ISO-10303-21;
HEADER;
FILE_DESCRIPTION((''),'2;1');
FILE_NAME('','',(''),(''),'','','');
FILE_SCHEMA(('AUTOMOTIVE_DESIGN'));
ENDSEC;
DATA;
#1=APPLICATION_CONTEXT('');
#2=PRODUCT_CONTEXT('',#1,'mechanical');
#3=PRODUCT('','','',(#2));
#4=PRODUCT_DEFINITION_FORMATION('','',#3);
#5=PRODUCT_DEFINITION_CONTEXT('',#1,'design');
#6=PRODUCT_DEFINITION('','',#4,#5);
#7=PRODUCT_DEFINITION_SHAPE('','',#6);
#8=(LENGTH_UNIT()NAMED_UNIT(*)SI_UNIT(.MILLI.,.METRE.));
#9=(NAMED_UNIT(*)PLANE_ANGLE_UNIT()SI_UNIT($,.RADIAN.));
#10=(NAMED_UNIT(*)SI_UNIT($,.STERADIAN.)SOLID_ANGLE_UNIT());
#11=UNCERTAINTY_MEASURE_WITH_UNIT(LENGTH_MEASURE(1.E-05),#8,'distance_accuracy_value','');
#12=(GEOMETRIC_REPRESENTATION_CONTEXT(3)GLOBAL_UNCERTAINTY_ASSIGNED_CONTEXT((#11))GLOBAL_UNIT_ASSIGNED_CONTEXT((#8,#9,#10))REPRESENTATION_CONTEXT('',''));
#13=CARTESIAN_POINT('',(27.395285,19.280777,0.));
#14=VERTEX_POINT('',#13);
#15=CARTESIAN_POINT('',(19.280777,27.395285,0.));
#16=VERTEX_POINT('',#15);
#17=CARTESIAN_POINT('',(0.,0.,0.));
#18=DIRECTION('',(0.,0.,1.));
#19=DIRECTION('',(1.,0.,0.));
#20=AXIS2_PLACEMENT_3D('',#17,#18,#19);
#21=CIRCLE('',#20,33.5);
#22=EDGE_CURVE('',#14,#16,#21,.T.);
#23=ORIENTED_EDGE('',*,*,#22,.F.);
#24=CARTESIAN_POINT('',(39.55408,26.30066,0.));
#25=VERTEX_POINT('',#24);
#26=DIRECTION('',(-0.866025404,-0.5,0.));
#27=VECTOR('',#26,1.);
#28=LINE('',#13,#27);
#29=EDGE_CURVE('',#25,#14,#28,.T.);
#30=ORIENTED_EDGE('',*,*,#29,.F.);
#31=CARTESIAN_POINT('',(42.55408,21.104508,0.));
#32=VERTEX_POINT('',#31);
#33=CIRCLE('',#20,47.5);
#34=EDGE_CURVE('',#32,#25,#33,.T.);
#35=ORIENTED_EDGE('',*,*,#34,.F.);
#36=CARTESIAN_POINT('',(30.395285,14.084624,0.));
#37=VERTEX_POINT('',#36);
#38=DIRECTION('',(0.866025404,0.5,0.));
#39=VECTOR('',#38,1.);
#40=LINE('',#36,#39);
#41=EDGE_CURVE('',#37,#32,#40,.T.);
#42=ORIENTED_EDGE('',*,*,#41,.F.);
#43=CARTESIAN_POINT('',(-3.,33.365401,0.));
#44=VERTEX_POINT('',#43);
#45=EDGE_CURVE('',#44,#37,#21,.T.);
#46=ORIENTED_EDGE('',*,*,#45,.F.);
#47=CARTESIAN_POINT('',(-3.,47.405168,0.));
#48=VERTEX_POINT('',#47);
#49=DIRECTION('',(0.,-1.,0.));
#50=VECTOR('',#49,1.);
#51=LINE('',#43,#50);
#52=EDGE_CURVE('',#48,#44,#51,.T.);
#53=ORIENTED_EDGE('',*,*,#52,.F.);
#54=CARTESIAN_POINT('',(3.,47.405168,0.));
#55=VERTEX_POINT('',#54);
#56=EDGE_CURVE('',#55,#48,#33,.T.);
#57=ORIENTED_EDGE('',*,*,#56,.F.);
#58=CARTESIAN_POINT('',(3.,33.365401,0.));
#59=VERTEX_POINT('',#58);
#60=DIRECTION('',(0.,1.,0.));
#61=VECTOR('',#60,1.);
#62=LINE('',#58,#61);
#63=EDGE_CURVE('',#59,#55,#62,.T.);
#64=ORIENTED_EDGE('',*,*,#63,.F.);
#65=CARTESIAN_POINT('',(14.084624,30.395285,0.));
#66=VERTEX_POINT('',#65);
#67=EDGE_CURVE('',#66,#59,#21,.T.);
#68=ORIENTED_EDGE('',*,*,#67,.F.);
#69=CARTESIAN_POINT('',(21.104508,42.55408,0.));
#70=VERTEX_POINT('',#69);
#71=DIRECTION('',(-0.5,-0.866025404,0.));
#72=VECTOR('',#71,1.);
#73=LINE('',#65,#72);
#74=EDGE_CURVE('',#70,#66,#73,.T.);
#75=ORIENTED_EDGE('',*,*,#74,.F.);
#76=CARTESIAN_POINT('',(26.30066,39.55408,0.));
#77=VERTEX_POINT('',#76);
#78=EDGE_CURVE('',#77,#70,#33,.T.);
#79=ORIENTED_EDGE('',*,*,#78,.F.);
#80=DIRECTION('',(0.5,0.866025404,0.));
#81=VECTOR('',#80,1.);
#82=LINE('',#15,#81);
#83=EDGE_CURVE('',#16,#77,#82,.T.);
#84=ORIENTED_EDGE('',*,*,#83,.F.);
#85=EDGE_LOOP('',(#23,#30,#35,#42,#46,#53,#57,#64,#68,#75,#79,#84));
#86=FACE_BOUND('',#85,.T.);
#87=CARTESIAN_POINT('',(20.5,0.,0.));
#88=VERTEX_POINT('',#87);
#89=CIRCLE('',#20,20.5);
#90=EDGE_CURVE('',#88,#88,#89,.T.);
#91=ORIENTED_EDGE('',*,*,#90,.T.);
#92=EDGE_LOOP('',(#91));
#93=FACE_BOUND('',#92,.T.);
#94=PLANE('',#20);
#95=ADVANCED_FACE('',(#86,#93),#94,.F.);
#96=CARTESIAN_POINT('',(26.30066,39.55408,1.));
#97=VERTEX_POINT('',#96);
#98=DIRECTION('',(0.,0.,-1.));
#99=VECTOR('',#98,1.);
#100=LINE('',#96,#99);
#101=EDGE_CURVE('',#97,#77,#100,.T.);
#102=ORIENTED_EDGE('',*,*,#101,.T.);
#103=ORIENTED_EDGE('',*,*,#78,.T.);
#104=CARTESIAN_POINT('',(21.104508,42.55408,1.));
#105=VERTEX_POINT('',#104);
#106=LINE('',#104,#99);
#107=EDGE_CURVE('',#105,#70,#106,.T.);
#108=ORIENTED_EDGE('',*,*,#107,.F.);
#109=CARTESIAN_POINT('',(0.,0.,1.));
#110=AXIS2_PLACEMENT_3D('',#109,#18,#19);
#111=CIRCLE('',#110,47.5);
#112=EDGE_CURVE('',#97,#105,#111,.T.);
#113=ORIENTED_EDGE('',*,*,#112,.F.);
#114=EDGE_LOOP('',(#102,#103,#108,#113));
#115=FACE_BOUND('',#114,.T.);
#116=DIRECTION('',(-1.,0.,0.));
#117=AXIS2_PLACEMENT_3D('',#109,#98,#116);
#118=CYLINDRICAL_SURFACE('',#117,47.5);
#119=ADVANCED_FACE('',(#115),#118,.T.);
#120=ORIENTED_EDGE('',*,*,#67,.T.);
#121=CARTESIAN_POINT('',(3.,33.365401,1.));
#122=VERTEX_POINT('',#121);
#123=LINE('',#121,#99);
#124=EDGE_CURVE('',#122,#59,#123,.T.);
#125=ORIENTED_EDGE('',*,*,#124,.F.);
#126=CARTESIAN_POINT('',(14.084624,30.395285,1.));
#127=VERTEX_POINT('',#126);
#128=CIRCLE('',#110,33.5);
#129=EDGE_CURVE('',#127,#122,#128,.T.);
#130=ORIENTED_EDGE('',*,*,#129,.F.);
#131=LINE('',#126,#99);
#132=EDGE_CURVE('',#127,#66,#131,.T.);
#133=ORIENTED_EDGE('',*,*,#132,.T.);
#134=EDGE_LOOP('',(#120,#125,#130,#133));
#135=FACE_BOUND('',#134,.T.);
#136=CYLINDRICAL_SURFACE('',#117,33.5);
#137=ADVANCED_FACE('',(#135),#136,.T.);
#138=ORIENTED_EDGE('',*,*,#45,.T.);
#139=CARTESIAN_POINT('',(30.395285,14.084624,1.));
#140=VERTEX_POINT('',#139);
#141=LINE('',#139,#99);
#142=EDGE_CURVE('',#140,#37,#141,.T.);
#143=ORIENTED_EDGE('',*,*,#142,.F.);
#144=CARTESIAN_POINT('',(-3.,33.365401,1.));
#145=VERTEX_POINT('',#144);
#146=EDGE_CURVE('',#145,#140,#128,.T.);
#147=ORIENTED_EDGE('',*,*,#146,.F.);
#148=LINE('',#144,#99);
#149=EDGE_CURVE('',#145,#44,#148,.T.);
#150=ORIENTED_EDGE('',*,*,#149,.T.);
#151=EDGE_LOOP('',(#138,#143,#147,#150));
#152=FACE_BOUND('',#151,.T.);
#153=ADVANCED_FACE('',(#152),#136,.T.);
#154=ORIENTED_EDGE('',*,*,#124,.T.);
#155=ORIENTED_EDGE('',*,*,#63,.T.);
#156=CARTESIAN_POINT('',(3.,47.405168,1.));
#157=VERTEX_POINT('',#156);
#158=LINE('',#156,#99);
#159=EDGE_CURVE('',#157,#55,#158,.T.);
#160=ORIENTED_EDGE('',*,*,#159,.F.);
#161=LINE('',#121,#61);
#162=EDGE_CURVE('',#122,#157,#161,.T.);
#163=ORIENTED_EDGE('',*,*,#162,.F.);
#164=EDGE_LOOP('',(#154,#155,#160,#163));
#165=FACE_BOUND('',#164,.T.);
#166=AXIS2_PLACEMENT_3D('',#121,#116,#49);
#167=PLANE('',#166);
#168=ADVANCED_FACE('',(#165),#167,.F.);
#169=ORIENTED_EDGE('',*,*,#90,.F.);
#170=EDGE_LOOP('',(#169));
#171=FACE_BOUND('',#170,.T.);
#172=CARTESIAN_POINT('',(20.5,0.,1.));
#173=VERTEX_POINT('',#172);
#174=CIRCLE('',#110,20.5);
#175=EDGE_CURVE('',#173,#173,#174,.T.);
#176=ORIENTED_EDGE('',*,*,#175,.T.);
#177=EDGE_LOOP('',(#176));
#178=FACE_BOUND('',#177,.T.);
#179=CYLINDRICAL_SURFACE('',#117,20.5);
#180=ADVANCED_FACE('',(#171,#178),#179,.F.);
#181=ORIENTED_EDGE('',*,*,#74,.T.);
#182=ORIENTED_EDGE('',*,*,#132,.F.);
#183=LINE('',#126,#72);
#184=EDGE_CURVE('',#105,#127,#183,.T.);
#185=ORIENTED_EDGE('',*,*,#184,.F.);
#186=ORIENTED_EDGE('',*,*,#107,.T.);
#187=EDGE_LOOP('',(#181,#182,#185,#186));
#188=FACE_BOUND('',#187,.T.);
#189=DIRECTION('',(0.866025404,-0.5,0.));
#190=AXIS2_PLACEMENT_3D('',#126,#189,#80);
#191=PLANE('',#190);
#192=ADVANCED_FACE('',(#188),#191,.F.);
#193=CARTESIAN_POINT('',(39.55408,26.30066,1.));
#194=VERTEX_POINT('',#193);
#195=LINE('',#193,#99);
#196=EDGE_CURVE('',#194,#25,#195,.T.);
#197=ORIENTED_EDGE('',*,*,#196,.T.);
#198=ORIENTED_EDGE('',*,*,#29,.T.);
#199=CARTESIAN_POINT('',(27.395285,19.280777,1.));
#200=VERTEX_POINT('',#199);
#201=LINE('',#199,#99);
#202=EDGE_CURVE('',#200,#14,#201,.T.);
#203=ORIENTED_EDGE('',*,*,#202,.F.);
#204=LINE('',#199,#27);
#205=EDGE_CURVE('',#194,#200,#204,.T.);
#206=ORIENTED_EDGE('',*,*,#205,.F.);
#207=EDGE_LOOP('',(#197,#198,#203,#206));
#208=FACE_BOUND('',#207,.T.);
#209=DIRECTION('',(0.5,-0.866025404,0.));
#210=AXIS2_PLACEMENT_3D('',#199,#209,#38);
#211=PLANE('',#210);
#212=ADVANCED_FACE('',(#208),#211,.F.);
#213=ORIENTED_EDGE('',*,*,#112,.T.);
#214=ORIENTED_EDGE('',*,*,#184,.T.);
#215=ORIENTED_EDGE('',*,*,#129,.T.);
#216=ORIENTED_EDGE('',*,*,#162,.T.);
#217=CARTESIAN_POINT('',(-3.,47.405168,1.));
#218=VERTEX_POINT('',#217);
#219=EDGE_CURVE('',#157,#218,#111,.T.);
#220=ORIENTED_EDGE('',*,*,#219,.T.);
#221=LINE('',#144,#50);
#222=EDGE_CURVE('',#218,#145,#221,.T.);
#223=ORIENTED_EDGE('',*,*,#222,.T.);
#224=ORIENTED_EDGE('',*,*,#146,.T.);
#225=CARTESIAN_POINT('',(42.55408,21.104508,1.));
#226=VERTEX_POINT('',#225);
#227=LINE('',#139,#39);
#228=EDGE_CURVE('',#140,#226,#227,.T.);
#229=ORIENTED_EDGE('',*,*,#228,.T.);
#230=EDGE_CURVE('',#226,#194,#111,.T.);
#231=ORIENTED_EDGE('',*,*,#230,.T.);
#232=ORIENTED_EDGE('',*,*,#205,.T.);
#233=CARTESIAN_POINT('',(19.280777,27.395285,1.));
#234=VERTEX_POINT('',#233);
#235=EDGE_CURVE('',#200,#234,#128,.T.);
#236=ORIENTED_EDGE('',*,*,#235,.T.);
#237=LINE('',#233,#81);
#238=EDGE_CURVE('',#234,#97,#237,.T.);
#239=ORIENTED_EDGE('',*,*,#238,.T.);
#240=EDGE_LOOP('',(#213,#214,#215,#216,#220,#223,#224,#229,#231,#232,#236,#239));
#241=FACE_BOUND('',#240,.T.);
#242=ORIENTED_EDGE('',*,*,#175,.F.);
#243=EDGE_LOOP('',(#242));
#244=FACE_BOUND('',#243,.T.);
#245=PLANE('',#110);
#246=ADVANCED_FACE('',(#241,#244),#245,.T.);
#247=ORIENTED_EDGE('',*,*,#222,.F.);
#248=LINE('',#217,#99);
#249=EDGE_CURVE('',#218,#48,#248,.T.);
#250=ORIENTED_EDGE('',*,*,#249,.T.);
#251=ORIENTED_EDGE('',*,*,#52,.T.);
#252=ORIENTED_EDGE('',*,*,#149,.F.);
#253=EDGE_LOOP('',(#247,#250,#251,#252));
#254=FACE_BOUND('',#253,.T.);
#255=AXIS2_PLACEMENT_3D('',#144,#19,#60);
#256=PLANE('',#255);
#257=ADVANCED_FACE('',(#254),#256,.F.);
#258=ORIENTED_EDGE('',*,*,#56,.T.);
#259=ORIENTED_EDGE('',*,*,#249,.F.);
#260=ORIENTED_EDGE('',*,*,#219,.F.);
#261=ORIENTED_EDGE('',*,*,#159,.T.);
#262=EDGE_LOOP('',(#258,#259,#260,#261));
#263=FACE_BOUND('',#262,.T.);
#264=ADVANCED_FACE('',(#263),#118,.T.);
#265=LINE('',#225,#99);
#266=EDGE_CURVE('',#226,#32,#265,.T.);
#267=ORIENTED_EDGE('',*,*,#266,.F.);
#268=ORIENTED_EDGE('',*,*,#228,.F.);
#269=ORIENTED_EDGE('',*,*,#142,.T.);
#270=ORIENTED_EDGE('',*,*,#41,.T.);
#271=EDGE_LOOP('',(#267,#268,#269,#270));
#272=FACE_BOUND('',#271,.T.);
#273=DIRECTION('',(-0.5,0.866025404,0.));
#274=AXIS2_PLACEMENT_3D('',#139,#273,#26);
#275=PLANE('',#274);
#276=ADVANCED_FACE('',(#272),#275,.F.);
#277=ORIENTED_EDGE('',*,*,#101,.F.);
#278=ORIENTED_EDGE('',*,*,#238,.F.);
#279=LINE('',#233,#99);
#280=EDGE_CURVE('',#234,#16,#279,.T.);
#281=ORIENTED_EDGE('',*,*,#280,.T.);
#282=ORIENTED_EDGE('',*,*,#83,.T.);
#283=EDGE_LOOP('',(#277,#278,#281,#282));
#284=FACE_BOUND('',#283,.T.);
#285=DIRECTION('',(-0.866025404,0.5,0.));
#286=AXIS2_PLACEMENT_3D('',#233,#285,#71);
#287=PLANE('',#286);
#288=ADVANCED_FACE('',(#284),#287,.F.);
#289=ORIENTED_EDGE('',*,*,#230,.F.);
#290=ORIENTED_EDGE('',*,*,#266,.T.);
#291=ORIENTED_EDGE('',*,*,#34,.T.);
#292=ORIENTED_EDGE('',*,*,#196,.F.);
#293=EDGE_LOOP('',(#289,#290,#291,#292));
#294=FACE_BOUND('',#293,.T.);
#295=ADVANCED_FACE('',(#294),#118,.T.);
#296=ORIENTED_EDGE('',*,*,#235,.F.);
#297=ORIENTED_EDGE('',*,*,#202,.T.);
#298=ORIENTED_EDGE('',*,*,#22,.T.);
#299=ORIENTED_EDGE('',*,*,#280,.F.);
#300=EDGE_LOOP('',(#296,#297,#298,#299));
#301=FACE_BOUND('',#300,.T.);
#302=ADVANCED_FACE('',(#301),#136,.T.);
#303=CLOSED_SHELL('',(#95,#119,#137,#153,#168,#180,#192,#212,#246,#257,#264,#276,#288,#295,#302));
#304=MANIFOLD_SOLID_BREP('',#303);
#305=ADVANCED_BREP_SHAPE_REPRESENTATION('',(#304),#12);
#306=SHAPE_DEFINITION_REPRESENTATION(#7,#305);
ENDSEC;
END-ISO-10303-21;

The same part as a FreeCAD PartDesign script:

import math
import FreeCAD as App
import Part
import Sketcher
from FreeCAD import Vector
Q = App.Units.Quantity

doc = App.newDocument("Part")
body = doc.addObject("PartDesign::Body", "Body")

# Sketch on XY plane
sketch1 = body.newObject("Sketcher::SketchObject", "Sketch")
sketch1.AttachmentSupport = (doc.getObject("XY_Plane"), [""])
sketch1.MapMode = "FlatFace"
sketch1.addGeometry(Part.LineSegment(Vector(21.104508, 42.55408, 0), Vector(14.084624, 30.395285, 0)), False)
sketch1.addGeometry(Part.ArcOfCircle(Part.Circle(Vector(0, 0, 0), Vector(0, 0, 1), 33.5), math.radians(65.137848), math.radians(84.862152)), False)
sketch1.addGeometry(Part.LineSegment(Vector(3, 33.365401, 0), Vector(3, 47.405168, 0)), False)
sketch1.addGeometry(Part.ArcOfCircle(Part.Circle(Vector(0, 0, 0), Vector(0, 0, 1), 47.5), math.radians(86.378909), math.radians(93.621091)), False)
sketch1.addGeometry(Part.LineSegment(Vector(-3, 47.405168, 0), Vector(-3, 33.365401, 0)), False)
sketch1.addGeometry(Part.ArcOfCircle(Part.Circle(Vector(0, 0, 0), Vector(0, 0, 1), 33.5), math.radians(95.137848), math.radians(384.862152)), False)
sketch1.addGeometry(Part.LineSegment(Vector(30.395285, 14.084624, 0), Vector(42.55408, 21.104508, 0)), False)
sketch1.addGeometry(Part.ArcOfCircle(Part.Circle(Vector(0, 0, 0), Vector(0, 0, 1), 47.5), math.radians(26.378909), math.radians(33.621091)), False)
sketch1.addGeometry(Part.LineSegment(Vector(39.55408, 26.30066, 0), Vector(27.395285, 19.280777, 0)), False)
sketch1.addGeometry(Part.ArcOfCircle(Part.Circle(Vector(0, 0, 0), Vector(0, 0, 1), 33.5), math.radians(35.137848), math.radians(54.862152)), False)
sketch1.addGeometry(Part.LineSegment(Vector(19.280777, 27.395285, 0), Vector(26.30066, 39.55408, 0)), False)
sketch1.addGeometry(Part.ArcOfCircle(Part.Circle(Vector(0, 0, 0), Vector(0, 0, 1), 47.5), math.radians(56.378909), math.radians(63.621091)), False)
sketch1.addGeometry(Part.Circle(Vector(0, 0, 0), Vector(0, 0, 1), 20.5), False)
sketch1.addConstraint(Sketcher.Constraint("Coincident", 0, 2, 1, 1))
sketch1.addConstraint(Sketcher.Constraint("Coincident", 1, 2, 2, 1))
sketch1.addConstraint(Sketcher.Constraint("Coincident", 2, 2, 3, 1))
sketch1.addConstraint(Sketcher.Constraint("Coincident", 3, 2, 4, 1))
sketch1.addConstraint(Sketcher.Constraint("Coincident", 4, 2, 5, 1))
sketch1.addConstraint(Sketcher.Constraint("Coincident", 5, 2, 6, 1))
sketch1.addConstraint(Sketcher.Constraint("Coincident", 6, 2, 7, 1))
sketch1.addConstraint(Sketcher.Constraint("Coincident", 7, 2, 8, 1))
sketch1.addConstraint(Sketcher.Constraint("Coincident", 8, 2, 9, 1))
sketch1.addConstraint(Sketcher.Constraint("Coincident", 9, 2, 10, 1))
sketch1.addConstraint(Sketcher.Constraint("Coincident", 10, 2, 11, 1))
sketch1.addConstraint(Sketcher.Constraint("Coincident", 11, 2, 0, 1))
sketch1.addConstraint(Sketcher.Constraint("Vertical", 2))
sketch1.addConstraint(Sketcher.Constraint("Vertical", 4))
sketch1.addConstraint(Sketcher.Constraint("Coincident", 1, 3, -1, 1))
sketch1.addConstraint(Sketcher.Constraint("Coincident", 3, 3, -1, 1))
sketch1.addConstraint(Sketcher.Constraint("Coincident", 5, 3, -1, 1))
sketch1.addConstraint(Sketcher.Constraint("Coincident", 7, 3, -1, 1))
sketch1.addConstraint(Sketcher.Constraint("Coincident", 9, 3, -1, 1))
sketch1.addConstraint(Sketcher.Constraint("Coincident", 11, 3, -1, 1))
sketch1.addConstraint(Sketcher.Constraint("Coincident", 12, 3, -1, 1))
sketch1.addConstraint(Sketcher.Constraint("Equal", 1, 5))
sketch1.addConstraint(Sketcher.Constraint("Equal", 3, 7))
sketch1.addConstraint(Sketcher.Constraint("Equal", 5, 9))
sketch1.addConstraint(Sketcher.Constraint("Equal", 7, 11))
sketch1.addConstraint(Sketcher.Constraint("Parallel", 6, 8))
sketch1.addConstraint(Sketcher.Constraint("Parallel", 0, 10))
sketch1.addConstraint(Sketcher.Constraint("Horizontal", 2, 2, 3, 2))
sketch1.addConstraint(Sketcher.Constraint("Equal", 0, 6))
sketch1.addConstraint(Sketcher.Constraint("Equal", 6, 8))
sketch1.addConstraint(Sketcher.Constraint("Equal", 8, 10))
sketch1.addConstraint(Sketcher.Constraint("Diameter", 12, 41.0))
sketch1.addConstraint(Sketcher.Constraint("Radius", 1, 33.5))
sketch1.addConstraint(Sketcher.Constraint("Radius", 3, 47.5))
sketch1.addConstraint(Sketcher.Constraint("Angle", 0, Q("-120 deg")))
sketch1.addConstraint(Sketcher.Constraint("Angle", 6, Q("30 deg")))
sketch1.addConstraint(Sketcher.Constraint("DistanceX", -1, 1, 1, 2, 3.0))
sketch1.addConstraint(Sketcher.Constraint("DistanceX", 7, 2, 6, 2, 3.0))
pad1 = body.newObject("PartDesign::Pad", "Pad")
pad1.Profile = sketch1
pad1.Length = 1

doc.recompute()
